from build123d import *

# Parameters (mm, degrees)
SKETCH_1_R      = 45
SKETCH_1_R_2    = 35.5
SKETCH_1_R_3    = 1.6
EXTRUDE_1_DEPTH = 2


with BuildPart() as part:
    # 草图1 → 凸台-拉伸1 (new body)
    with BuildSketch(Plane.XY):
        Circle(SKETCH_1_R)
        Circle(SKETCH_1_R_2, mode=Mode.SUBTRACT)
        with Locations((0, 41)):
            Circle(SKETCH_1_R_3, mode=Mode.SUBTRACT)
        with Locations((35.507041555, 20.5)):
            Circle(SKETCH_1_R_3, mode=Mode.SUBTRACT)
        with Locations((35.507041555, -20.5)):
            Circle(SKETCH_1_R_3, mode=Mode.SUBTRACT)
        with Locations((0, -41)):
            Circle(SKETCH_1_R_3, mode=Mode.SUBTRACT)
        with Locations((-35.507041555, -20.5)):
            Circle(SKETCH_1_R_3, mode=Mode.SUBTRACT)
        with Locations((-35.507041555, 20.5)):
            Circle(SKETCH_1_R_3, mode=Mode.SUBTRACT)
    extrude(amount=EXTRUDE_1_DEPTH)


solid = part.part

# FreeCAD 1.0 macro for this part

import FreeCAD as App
import Part
import Sketcher

V = App.Vector
Q = App.Units.Quantity

doc = App.newDocument("Part")
body = doc.addObject("PartDesign::Body", "Body")

# Sketch on XY plane
sketch1 = body.newObject("Sketcher::SketchObject", "Sketch")
sketch1.AttachmentSupport = (doc.getObject("XY_Plane"), [""])
sketch1.MapMode = "FlatFace"
sketch1.addGeometry([
    Part.Circle(V(0, 0, 0), V(0, 0, 1), 45),  # 0
    Part.Circle(V(-35.507042, -20.5, 0), V(0, 0, 1), 1.6),  # 1
    Part.Circle(V(0, -41, 0), V(0, 0, 1), 1.6),  # 2
    Part.Circle(V(35.507042, -20.5, 0), V(0, 0, 1), 1.6),  # 3
    Part.Circle(V(-35.507042, 20.5, 0), V(0, 0, 1), 1.6),  # 4
    Part.Circle(V(0, 0, 0), V(0, 0, 1), 35.5),  # 5
    Part.Circle(V(35.507042, 20.5, 0), V(0, 0, 1), 1.6),  # 6
    Part.Circle(V(0, 41, 0), V(0, 0, 1), 1.6),  # 7
], False)
sketch1.addConstraint([
    Sketcher.Constraint("Coincident", 0, 3, -1, 1),
    Sketcher.Constraint("Coincident", 5, 3, -1, 1),
    Sketcher.Constraint("Equal", 1, 2),
    Sketcher.Constraint("Equal", 2, 3),
    Sketcher.Constraint("Equal", 3, 4),
    Sketcher.Constraint("Equal", 4, 6),
    Sketcher.Constraint("Equal", 6, 7),
    Sketcher.Constraint("Symmetric", 3, 3, 4, 3, -1, 1),
    Sketcher.Constraint("Symmetric", 1, 3, 6, 3, -1, 1),
    Sketcher.Constraint("Symmetric", 2, 3, 7, 3, -1, 1),
    Sketcher.Constraint("Symmetric", 1, 3, 3, 3, -2),
    Sketcher.Constraint("PointOnObject", 2, 3, -2),
    Sketcher.Constraint("Diameter", 0, Q("90 mm")),
    Sketcher.Constraint("Diameter", 5, Q("71 mm")),
    Sketcher.Constraint("Diameter", 1, Q("3.2 mm")),
    Sketcher.Constraint("DistanceY", 2, 3, -1, 1, Q("41 mm")),
    Sketcher.Constraint("DistanceY", 1, 3, 4, 3, Q("41 mm")),
    Sketcher.Constraint("DistanceX", 1, 3, -1, 1, Q("35.507042 mm")),
])
pad1 = body.newObject("PartDesign::Pad", "Pad")
pad1.Profile = sketch1
pad1.Length = 2

doc.recompute()
